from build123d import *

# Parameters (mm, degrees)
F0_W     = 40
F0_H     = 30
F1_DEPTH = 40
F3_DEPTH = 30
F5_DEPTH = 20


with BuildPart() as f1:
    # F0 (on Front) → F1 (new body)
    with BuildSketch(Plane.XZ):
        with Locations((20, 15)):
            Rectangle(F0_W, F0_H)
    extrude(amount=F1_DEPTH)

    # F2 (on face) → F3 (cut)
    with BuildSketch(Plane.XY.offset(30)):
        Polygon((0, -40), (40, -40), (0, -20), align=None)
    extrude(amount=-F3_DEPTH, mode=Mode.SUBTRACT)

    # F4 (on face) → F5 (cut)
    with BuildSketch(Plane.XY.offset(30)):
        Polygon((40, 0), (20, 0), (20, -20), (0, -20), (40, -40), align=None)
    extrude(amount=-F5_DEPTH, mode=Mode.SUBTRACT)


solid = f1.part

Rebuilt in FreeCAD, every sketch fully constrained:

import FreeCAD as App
import Part
import Sketcher
from FreeCAD import Vector
Q = App.Units.Quantity

doc = App.newDocument("Part")
body = doc.addObject("PartDesign::Body", "Body")

# Sketch on XZ plane
sketch1 = body.newObject("Sketcher::SketchObject", "Sketch")
sketch1.AttachmentSupport = (doc.getObject("XZ_Plane"), [""])
sketch1.MapMode = "FlatFace"
sketch1.addGeometry(Part.LineSegment(Vector(0, 30, 0), Vector(0, 0, 0)), False)
sketch1.addGeometry(Part.LineSegment(Vector(0, 0, 0), Vector(40, 0, 0)), False)
sketch1.addGeometry(Part.LineSegment(Vector(40, 0, 0), Vector(40, 30, 0)), False)
sketch1.addGeometry(Part.LineSegment(Vector(40, 30, 0), Vector(0, 30, 0)), False)
sketch1.addConstraint(Sketcher.Constraint("Coincident", 0, 2, 1, 1))
sketch1.addConstraint(Sketcher.Constraint("Coincident", 1, 2, 2, 1))
sketch1.addConstraint(Sketcher.Constraint("Coincident", 2, 2, 3, 1))
sketch1.addConstraint(Sketcher.Constraint("Coincident", 3, 2, 0, 1))
sketch1.addConstraint(Sketcher.Constraint("Vertical", 0))
sketch1.addConstraint(Sketcher.Constraint("Horizontal", 1))
sketch1.addConstraint(Sketcher.Constraint("Vertical", 2))
sketch1.addConstraint(Sketcher.Constraint("Horizontal", 3))
sketch1.addConstraint(Sketcher.Constraint("Coincident", 0, 2, -1, 1))
sketch1.addConstraint(Sketcher.Constraint("DistanceX", 1, 1, 1, 2, Q("40 mm")))
sketch1.addConstraint(Sketcher.Constraint("DistanceY", 0, 2, 0, 1, Q("30 mm")))
pad1 = body.newObject("PartDesign::Pad", "Pad")
pad1.Profile = sketch1
pad1.Length = 40

# Sketch on XY plane
sketch2 = body.newObject("Sketcher::SketchObject", "Sketch001")
sketch2.AttachmentSupport = (doc.getObject("XY_Plane"), [""])
sketch2.MapMode = "FlatFace"
sketch2.AttachmentOffset = App.Placement(Vector(0, 0, 30), App.Rotation())
sketch2.addGeometry(Part.LineSegment(Vector(0, -40, 0), Vector(40, -40, 0)), False)
sketch2.addGeometry(Part.LineSegment(Vector(40, -40, 0), Vector(0, -20, 0)), False)
sketch2.addGeometry(Part.LineSegment(Vector(0, -20, 0), Vector(0, -40, 0)), False)
sketch2.addConstraint(Sketcher.Constraint("Coincident", 0, 2, 1, 1))
sketch2.addConstraint(Sketcher.Constraint("Coincident", 1, 2, 2, 1))
sketch2.addConstraint(Sketcher.Constraint("Coincident", 2, 2, 0, 1))
sketch2.addConstraint(Sketcher.Constraint("Horizontal", 0))
sketch2.addConstraint(Sketcher.Constraint("Vertical", 2))
sketch2.addConstraint(Sketcher.Constraint("PointOnObject", 1, 2, -2))
sketch2.addConstraint(Sketcher.Constraint("DistanceX", 0, 1, 0, 2, Q("40 mm")))
sketch2.addConstraint(Sketcher.Constraint("DistanceY", 2, 2, 2, 1, Q("20 mm")))
sketch2.addConstraint(Sketcher.Constraint("DistanceY", 0, 2, -1, 1, Q("40 mm")))
pocket1 = body.newObject("PartDesign::Pocket", "Pocket")
pocket1.Profile = sketch2
pocket1.Length = 30

# Sketch on XY plane
sketch3 = body.newObject("Sketcher::SketchObject", "Sketch002")
sketch3.AttachmentSupport = (doc.getObject("XY_Plane"), [""])
sketch3.MapMode = "FlatFace"
sketch3.AttachmentOffset = App.Placement(Vector(0, 0, 30), App.Rotation())
sketch3.addGeometry(Part.LineSegment(Vector(40, 0, 0), Vector(20, 0, 0)), False)
sketch3.addGeometry(Part.LineSegment(Vector(20, 0, 0), Vector(20, -20, 0)), False)
sketch3.addGeometry(Part.LineSegment(Vector(20, -20, 0), Vector(0, -20, 0)), False)
sketch3.addGeometry(Part.LineSegment(Vector(0, -20, 0), Vector(40, -40, 0)), False)
sketch3.addGeometry(Part.LineSegment(Vector(40, -40, 0), Vector(40, 0, 0)), False)
sketch3.addConstraint(Sketcher.Constraint("Coincident", 0, 2, 1, 1))
sketch3.addConstraint(Sketcher.Constraint("Coincident", 1, 2, 2, 1))
sketch3.addConstraint(Sketcher.Constraint("Coincident", 2, 2, 3, 1))
sketch3.addConstraint(Sketcher.Constraint("Coincident", 3, 2, 4, 1))
sketch3.addConstraint(Sketcher.Constraint("Coincident", 4, 2, 0, 1))
sketch3.addConstraint(Sketcher.Constraint("Horizontal", 0))
sketch3.addConstraint(Sketcher.Constraint("Vertical", 1))
sketch3.addConstraint(Sketcher.Constraint("Horizontal", 2))
sketch3.addConstraint(Sketcher.Constraint("Vertical", 4))
sketch3.addConstraint(Sketcher.Constraint("PointOnObject", 0, 2, -1))
sketch3.addConstraint(Sketcher.Constraint("PointOnObject", 2, 2, -2))
sketch3.addConstraint(Sketcher.Constraint("Equal", 0, 2))
sketch3.addConstraint(Sketcher.Constraint("Equal", 2, 1))
sketch3.addConstraint(Sketcher.Constraint("DistanceX", 0, 2, 0, 1, Q("20 mm")))
sketch3.addConstraint(Sketcher.Constraint("DistanceY", 4, 1, 4, 2, Q("40 mm")))
pocket2 = body.newObject("PartDesign::Pocket", "Pocket001")
pocket2.Profile = sketch3
pocket2.Length = 20

doc.recompute()
